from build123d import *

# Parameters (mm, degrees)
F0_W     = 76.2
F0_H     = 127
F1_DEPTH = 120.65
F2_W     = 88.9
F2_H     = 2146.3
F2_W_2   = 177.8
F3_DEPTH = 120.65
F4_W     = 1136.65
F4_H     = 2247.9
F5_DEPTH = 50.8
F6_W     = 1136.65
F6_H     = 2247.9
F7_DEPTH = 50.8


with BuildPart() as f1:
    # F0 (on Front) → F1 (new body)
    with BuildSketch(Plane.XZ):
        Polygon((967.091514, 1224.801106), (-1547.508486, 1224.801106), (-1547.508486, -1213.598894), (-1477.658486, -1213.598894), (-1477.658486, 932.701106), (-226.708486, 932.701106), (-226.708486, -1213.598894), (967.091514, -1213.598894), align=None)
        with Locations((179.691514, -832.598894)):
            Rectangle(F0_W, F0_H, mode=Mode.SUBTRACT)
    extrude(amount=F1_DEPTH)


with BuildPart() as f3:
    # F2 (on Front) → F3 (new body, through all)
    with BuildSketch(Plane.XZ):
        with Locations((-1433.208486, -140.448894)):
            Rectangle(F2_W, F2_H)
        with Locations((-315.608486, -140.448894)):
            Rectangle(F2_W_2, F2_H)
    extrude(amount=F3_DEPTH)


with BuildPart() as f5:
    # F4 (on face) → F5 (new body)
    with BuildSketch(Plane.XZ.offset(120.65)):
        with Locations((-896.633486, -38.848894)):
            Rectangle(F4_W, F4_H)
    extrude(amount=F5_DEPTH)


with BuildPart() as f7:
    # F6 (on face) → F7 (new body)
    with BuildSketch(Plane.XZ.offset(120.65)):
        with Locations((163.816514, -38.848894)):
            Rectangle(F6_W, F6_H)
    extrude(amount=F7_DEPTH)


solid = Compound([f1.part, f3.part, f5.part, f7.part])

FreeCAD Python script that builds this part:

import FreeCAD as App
import Part
import Sketcher
Q = App.Units.Quantity


def add_polygon(sketch, points):
    """Adds a closed chain of lines whose ends are joined by coincident constraints."""
    first, n = sketch.GeometryCount, len(points)
    for a, b in zip(points, points[1:] + points[:1]):
        sketch.addGeometry(Part.LineSegment(App.Vector(*a, 0), App.Vector(*b, 0)), False)
    for i in range(n):
        sketch.addConstraint(Sketcher.Constraint("Coincident", first + i, 2, first + (i + 1) % n, 1))

doc = App.newDocument("Part")
params = doc.addObject("Spreadsheet::Sheet", "Params")
for row, (alias, value) in enumerate([
    ("sketch1_width", "99 in"),
    ("sketch1_width2", "47 in"),
    ("sketch1_width3", "3 in"),
    ("sketch1_height", "96 in"),
    ("sketch1_height2", "5 in"),
    ("pad1_length", "4.75 in"),
    ("sketch2_width", "7 in"),
    ("sketch2_width2", "3.5 in"),
    ("sketch2_height", "84.5 in"),
    ("pad2_length", "4.75 in"),
    ("sketch3_height", "88.5 in"),
    ("sketch3_width", "44.75 in"),
    ("pad3_length", "2 in"),
    ("sketch4_height", "88.5 in"),
    ("sketch4_width", "44.75 in"),
    ("pad4_length", "2 in"),
], start=1):
    params.set(f"A{row}", alias)
    params.set(f"B{row}", "=" + value)
    params.setAlias(f"B{row}", alias)

body = doc.addObject("PartDesign::Body", "Body")

# Sketch on XZ plane
sketch1 = body.newObject("Sketcher::SketchObject", "Sketch")
sketch1.AttachmentSupport = (doc.getObject("XZ_Plane"), [""])
sketch1.MapMode = "FlatFace"
add_polygon(sketch1, [(967, 1225), (-1548, 1225), (-1548, -1214), (-1478, -1214), (-1478, 933), (-227, 933), (-227, -1214), (967, -1214)])  # lines 0-7
add_polygon(sketch1, [(218, -896), (142, -896), (142, -769), (218, -769)])  # lines 8-11
sketch1.addConstraint([
    Sketcher.Constraint("Horizontal", 0),
    Sketcher.Constraint("Vertical", 1),
    Sketcher.Constraint("Horizontal", 2),
    Sketcher.Constraint("Vertical", 3),
    Sketcher.Constraint("Horizontal", 4),
    Sketcher.Constraint("Vertical", 5),
    Sketcher.Constraint("Horizontal", 6),
    Sketcher.Constraint("Vertical", 7),
    Sketcher.Constraint("Horizontal", 8),
    Sketcher.Constraint("Vertical", 9),
    Sketcher.Constraint("Horizontal", 10),
    Sketcher.Constraint("Vertical", 11),
    Sketcher.Constraint("Horizontal", 2, 2, 5, 2),
    Sketcher.Constraint("DistanceX", 0, 2, 0, 1, Q("99 in")),
    Sketcher.Constraint("DistanceX", 6, 1, 6, 2, Q("47 in")),
    Sketcher.Constraint("DistanceX", 8, 2, 8, 1, Q("3 in")),
    Sketcher.Constraint("DistanceY", 1, 2, 1, 1, Q("96 in")),
    Sketcher.Constraint("DistanceY", 9, 1, 9, 2, Q("5 in")),
    Sketcher.Constraint("DistanceY", 3, 1, 3, 2, Q("84.5 in")),
    Sketcher.Constraint("DistanceY", 8, 2, 4, 2, Q("72 in")),
    Sketcher.Constraint("DistanceX", 2, 1, 2, 2, Q("2.75 in")),
    Sketcher.Constraint("DistanceX", 5, 2, 8, 2, Q("14.5 in")),
    Sketcher.Constraint("DistanceX", 0, 2, -1, 1, 1547.508486),
    Sketcher.Constraint("DistanceY", -1, 1, 0, 2, 1224.801106),
])
sketch1.setExpression("Constraints[25]", "Params.sketch1_width")
sketch1.setExpression("Constraints[26]", "Params.sketch1_width2")
sketch1.setExpression("Constraints[27]", "Params.sketch1_width3")
sketch1.setExpression("Constraints[28]", "Params.sketch1_height")
sketch1.setExpression("Constraints[29]", "Params.sketch1_height2")
pad1 = body.newObject("PartDesign::Pad", "Pad")
pad1.Profile = sketch1
pad1.setExpression("Length", "Params.pad1_length")
body2 = doc.addObject("PartDesign::Body", "Body001")
body2.AllowCompound = True

# Sketch on XZ plane
sketch2 = body2.newObject("Sketcher::SketchObject", "Sketch001")
sketch2.AttachmentSupport = (doc.getObject("XZ_Plane001"), [""])
sketch2.MapMode = "FlatFace"
add_polygon(sketch2, [(-1478, 933), (-1478, -1214), (-1389, -1214), (-1389, 933)])  # lines 0-3
add_polygon(sketch2, [(-405, 933), (-405, -1214), (-227, -1214), (-227, 933)])  # lines 4-7
sketch2.addConstraint([
    Sketcher.Constraint("Vertical", 0),
    Sketcher.Constraint("Horizontal", 1),
    Sketcher.Constraint("Vertical", 2),
    Sketcher.Constraint("Horizontal", 3),
    Sketcher.Constraint("Vertical", 4),
    Sketcher.Constraint("Horizontal", 5),
    Sketcher.Constraint("Vertical", 6),
    Sketcher.Constraint("Horizontal", 7),
    Sketcher.Constraint("Horizontal", 1, 2, 4, 2),
    Sketcher.Constraint("Horizontal", 3, 2, 6, 2),
    Sketcher.Constraint("DistanceX", 5, 1, 5, 2, Q("7 in")),
    Sketcher.Constraint("DistanceX", 1, 1, 1, 2, Q("3.5 in")),
    Sketcher.Constraint("DistanceY", 0, 2, 0, 1, Q("84.5 in")),
    Sketcher.Constraint("DistanceX", 1, 2, 4, 2, Q("38.75 in")),
    Sketcher.Constraint("DistanceX", 0, 2, -1, 1, 1477.658486),
    Sketcher.Constraint("DistanceY", 0, 2, -1, 1, 1213.598894),
])
sketch2.setExpression("Constraints[18]", "Params.sketch2_width")
sketch2.setExpression("Constraints[19]", "Params.sketch2_width2")
sketch2.setExpression("Constraints[20]", "Params.sketch2_height")
pad2 = body2.newObject("PartDesign::Pad", "Pad001")
pad2.Profile = sketch2
pad2.setExpression("Length", "Params.pad2_length")
body3 = doc.addObject("PartDesign::Body", "Body002")

# Sketch on XZ plane
sketch3 = body3.newObject("Sketcher::SketchObject", "Sketch002")
sketch3.AttachmentSupport = (doc.getObject("XZ_Plane002"), [""])
sketch3.MapMode = "FlatFace"
sketch3.AttachmentOffset = App.Placement(App.Vector(0, 0, 4.75 * 25.4), App.Rotation())
add_polygon(sketch3, [(-1465, 1085), (-1465, -1163), (-328, -1163), (-328, 1085)])  # lines 0-3
sketch3.addConstraint([
    Sketcher.Constraint("Vertical", 0),
    Sketcher.Constraint("Horizontal", 1),
    Sketcher.Constraint("Vertical", 2),
    Sketcher.Constraint("Horizontal", 3),
    Sketcher.Constraint("DistanceY", 0, 2, 0, 1, Q("88.5 in")),
    Sketcher.Constraint("DistanceX", 1, 1, 1, 2, Q("44.75 in")),
    Sketcher.Constraint("DistanceX", 0, 2, -1, 1, 1464.958486),
    Sketcher.Constraint("DistanceY", 0, 2, -1, 1, 1162.798894),
])
sketch3.setExpression("Constraints[8]", "Params.sketch3_height")
sketch3.setExpression("Constraints[9]", "Params.sketch3_width")
pad3 = body3.newObject("PartDesign::Pad", "Pad002")
pad3.Profile = sketch3
pad3.setExpression("Length", "Params.pad3_length")
body4 = doc.addObject("PartDesign::Body", "Body003")

# Sketch on XZ plane
sketch4 = body4.newObject("Sketcher::SketchObject", "Sketch003")
sketch4.AttachmentSupport = (doc.getObject("XZ_Plane003"), [""])
sketch4.MapMode = "FlatFace"
sketch4.AttachmentOffset = App.Placement(App.Vector(0, 0, 4.75 * 25.4), App.Rotation())
add_polygon(sketch4, [(-405, 1085), (-405, -1163), (732, -1163), (732, 1085)])  # lines 0-3
sketch4.addConstraint([
    Sketcher.Constraint("Vertical", 0),
    Sketcher.Constraint("Horizontal", 1),
    Sketcher.Constraint("Vertical", 2),
    Sketcher.Constraint("Horizontal", 3),
    Sketcher.Constraint("DistanceY", 0, 2, 0, 1, Q("88.5 in")),
    Sketcher.Constraint("DistanceX", 1, 1, 1, 2, Q("44.75 in")),
    Sketcher.Constraint("DistanceX", 0, 2, -1, 1, 404.508486),
    Sketcher.Constraint("DistanceY", 0, 2, -1, 1, 1162.798894),
])
sketch4.setExpression("Constraints[8]", "Params.sketch4_height")
sketch4.setExpression("Constraints[9]", "Params.sketch4_width")
pad4 = body4.newObject("PartDesign::Pad", "Pad003")
pad4.Profile = sketch4
pad4.setExpression("Length", "Params.pad4_length")

doc.recompute()
